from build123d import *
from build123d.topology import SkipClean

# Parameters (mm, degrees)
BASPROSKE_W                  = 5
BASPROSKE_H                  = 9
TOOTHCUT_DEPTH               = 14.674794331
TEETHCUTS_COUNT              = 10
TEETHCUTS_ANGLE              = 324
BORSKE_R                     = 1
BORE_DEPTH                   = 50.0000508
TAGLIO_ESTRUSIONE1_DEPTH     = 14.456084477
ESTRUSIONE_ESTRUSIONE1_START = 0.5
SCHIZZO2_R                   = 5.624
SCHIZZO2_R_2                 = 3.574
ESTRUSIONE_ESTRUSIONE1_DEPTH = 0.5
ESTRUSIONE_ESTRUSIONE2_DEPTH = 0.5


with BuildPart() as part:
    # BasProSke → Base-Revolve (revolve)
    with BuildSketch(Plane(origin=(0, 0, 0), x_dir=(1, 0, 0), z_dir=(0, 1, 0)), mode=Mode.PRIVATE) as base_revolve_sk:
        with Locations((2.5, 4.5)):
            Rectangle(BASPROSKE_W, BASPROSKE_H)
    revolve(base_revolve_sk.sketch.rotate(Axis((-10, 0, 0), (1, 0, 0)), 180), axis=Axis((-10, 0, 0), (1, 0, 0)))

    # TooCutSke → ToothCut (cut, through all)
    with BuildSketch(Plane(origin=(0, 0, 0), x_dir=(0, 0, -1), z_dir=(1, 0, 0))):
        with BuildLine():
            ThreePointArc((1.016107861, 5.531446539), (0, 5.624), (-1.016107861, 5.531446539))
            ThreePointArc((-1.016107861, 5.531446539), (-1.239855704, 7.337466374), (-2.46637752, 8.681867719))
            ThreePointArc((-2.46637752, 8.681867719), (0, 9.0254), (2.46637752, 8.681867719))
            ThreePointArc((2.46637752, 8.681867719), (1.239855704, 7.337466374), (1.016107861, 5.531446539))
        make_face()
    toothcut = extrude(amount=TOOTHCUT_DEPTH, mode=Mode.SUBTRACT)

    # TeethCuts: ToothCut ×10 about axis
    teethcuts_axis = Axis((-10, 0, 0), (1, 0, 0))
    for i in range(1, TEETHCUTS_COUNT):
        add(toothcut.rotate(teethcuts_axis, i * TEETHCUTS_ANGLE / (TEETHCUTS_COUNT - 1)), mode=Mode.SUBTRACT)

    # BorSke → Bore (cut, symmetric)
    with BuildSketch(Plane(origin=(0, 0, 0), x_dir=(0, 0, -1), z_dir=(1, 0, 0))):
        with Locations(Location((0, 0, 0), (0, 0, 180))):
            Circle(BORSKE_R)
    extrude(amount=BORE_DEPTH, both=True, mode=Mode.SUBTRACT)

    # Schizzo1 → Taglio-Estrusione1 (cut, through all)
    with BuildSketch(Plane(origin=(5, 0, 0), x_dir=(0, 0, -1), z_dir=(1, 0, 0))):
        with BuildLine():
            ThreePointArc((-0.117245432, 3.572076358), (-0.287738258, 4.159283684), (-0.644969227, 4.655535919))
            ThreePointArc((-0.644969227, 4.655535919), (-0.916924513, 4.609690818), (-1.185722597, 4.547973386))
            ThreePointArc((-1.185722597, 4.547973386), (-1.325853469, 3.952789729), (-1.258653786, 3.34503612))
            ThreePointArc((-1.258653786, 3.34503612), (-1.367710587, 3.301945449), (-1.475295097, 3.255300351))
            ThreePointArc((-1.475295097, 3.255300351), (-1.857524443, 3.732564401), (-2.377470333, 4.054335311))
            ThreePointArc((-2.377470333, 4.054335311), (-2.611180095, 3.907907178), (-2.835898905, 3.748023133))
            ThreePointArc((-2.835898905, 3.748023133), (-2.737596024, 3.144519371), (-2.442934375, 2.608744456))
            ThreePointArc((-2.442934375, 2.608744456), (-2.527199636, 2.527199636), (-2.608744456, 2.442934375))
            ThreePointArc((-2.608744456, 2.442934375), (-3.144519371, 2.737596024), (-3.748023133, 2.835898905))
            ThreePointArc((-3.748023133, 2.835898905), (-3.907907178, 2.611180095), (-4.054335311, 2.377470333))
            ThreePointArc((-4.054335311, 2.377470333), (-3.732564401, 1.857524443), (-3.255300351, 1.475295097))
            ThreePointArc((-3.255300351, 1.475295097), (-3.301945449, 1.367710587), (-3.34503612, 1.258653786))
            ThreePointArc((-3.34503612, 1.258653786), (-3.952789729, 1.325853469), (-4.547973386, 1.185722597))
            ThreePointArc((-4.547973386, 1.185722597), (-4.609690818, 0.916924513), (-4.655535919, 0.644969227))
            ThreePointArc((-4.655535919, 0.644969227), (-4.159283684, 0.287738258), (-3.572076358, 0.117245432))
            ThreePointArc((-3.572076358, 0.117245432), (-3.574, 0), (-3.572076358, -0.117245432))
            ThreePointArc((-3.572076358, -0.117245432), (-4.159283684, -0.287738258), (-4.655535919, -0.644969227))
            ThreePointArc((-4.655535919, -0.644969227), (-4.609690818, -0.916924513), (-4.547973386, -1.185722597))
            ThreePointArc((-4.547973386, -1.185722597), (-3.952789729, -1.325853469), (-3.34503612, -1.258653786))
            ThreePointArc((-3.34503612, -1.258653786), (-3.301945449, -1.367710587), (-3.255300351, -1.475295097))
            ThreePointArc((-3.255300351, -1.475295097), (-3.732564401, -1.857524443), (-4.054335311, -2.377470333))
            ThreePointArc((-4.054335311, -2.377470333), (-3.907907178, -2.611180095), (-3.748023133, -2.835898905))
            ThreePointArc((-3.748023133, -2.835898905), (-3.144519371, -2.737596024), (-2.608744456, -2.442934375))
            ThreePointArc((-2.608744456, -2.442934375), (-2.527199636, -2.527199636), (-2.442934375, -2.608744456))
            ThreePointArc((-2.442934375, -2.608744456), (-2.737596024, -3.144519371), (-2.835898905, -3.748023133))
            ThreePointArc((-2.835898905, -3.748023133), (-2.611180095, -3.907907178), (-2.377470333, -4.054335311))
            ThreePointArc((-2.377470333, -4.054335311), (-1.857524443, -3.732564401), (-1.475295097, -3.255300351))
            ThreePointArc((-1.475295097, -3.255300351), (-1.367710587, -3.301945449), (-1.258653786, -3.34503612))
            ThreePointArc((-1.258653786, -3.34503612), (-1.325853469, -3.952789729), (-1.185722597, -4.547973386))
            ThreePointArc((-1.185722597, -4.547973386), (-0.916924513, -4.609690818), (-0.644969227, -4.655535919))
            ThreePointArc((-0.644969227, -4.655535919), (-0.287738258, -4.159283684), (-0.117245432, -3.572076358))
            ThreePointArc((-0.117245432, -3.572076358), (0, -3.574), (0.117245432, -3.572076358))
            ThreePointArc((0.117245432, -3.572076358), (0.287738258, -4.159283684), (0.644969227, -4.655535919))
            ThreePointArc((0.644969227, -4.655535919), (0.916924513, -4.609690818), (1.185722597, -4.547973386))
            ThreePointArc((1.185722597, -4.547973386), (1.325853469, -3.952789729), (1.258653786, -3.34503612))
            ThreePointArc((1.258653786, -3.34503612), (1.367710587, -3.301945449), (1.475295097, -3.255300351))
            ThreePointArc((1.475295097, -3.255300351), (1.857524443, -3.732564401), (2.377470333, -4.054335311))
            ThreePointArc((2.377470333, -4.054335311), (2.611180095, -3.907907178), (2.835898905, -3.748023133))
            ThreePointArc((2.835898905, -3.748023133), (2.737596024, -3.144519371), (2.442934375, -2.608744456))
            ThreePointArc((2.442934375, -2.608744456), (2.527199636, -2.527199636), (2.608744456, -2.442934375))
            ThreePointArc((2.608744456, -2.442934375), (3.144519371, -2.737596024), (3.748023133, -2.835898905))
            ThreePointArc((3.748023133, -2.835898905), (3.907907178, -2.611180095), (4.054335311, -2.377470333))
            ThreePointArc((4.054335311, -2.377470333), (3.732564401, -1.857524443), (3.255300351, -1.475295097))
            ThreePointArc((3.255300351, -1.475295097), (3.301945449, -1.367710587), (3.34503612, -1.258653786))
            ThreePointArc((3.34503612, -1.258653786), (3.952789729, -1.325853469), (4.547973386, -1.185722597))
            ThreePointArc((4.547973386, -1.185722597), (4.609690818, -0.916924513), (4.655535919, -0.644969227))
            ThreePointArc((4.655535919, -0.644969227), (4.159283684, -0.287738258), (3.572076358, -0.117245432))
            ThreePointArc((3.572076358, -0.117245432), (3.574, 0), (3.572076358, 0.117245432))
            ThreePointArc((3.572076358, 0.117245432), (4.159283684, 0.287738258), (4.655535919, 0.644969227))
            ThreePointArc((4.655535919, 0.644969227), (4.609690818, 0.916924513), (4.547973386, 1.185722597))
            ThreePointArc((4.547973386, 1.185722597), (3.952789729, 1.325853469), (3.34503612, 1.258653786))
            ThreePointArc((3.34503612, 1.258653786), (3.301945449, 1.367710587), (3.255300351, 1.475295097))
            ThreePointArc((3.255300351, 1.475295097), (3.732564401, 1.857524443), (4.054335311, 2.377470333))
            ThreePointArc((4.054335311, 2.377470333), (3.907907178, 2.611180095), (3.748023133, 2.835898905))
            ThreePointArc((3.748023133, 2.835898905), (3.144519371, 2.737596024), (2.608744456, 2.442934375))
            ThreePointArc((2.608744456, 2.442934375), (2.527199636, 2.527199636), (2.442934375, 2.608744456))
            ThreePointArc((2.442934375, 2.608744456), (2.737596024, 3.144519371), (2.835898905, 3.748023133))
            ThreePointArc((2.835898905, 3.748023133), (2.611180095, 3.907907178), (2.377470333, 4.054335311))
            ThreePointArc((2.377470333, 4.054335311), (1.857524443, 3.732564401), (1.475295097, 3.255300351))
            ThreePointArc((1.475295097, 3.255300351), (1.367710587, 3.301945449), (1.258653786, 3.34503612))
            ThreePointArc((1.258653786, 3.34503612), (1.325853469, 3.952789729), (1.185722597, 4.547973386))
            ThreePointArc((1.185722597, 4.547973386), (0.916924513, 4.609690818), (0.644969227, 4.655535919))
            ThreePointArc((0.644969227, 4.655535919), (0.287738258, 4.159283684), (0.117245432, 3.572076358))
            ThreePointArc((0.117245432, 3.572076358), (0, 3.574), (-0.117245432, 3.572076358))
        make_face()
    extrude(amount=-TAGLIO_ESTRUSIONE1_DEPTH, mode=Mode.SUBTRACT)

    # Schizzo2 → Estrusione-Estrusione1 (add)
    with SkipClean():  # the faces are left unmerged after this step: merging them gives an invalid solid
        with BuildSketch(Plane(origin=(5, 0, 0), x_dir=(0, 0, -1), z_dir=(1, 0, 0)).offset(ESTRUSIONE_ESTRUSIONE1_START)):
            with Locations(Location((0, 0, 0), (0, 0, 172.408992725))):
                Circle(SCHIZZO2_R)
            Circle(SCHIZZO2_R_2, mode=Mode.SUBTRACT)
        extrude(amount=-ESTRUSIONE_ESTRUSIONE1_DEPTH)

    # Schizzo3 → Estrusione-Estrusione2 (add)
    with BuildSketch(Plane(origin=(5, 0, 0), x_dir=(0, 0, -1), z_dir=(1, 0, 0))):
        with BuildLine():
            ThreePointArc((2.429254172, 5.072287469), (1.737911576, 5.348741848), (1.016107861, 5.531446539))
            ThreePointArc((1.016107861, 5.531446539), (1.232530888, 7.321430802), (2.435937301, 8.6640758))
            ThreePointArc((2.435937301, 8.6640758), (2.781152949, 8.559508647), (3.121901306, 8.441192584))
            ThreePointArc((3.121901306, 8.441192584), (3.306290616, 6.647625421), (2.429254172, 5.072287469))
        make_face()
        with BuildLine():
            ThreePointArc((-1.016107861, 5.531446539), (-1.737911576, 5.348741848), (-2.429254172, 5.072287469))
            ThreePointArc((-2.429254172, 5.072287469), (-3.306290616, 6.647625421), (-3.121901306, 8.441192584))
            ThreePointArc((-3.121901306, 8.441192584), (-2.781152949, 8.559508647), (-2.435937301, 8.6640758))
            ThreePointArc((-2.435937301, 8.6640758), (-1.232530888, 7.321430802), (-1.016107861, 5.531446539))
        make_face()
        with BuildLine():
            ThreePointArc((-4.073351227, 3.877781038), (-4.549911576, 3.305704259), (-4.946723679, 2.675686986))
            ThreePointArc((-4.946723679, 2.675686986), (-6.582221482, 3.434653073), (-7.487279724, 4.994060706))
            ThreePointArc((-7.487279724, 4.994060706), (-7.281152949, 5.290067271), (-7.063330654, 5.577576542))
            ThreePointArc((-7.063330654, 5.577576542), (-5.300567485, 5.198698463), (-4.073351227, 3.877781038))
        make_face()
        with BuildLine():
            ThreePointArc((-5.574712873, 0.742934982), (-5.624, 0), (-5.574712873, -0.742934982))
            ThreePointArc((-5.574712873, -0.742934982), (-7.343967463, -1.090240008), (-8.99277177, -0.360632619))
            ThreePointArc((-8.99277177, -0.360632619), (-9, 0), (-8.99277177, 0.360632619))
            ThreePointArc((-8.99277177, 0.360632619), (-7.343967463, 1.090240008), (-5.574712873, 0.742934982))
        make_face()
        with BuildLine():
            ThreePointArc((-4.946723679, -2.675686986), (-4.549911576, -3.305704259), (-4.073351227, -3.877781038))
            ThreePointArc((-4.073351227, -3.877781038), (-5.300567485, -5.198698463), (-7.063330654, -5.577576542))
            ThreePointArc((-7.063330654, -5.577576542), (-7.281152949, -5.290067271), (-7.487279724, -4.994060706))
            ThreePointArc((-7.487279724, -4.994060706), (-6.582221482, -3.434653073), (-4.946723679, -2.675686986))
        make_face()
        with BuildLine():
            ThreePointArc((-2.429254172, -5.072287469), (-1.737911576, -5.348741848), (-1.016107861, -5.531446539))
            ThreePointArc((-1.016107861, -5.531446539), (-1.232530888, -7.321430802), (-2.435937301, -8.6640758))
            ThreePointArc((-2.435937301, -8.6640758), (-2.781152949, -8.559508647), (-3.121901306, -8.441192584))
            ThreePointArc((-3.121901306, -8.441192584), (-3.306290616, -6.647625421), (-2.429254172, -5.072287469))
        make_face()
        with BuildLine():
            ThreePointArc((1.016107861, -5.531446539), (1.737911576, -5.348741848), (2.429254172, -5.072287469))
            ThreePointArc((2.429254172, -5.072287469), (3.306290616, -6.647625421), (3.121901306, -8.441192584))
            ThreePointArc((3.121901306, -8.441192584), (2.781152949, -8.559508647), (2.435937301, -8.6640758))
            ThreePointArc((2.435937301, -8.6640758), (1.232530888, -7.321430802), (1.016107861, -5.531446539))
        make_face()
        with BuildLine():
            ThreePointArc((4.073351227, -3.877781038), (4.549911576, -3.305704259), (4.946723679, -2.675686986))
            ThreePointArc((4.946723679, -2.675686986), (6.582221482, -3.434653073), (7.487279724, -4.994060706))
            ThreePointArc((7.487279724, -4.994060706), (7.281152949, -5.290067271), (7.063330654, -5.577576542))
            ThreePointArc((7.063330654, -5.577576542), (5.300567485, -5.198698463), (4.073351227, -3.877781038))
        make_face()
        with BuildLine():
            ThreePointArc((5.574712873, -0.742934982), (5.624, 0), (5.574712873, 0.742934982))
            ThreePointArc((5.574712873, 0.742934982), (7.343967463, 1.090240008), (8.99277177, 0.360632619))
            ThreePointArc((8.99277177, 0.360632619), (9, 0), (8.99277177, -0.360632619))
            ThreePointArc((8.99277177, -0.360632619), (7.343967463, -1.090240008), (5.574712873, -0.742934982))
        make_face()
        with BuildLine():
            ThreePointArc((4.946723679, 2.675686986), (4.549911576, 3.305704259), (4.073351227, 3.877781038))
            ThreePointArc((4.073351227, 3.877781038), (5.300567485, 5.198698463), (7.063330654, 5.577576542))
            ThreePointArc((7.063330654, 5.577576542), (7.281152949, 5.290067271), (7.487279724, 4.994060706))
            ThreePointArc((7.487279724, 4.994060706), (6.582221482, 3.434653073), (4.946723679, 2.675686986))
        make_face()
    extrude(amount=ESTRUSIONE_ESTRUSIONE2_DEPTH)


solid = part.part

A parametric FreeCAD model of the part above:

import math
import FreeCAD as App
import Part
import Sketcher
Q = App.Units.Quantity


def add_polygon(sketch, points):
    """Adds a closed chain of lines whose ends are joined by coincident constraints."""
    first, n = sketch.GeometryCount, len(points)
    for a, b in zip(points, points[1:] + points[:1]):
        sketch.addGeometry(Part.LineSegment(App.Vector(*a, 0), App.Vector(*b, 0)), False)
    for i in range(n):
        sketch.addConstraint(Sketcher.Constraint("Coincident", first + i, 2, first + (i + 1) % n, 1))

doc = App.newDocument("Part")
params = doc.addObject("Spreadsheet::Sheet", "Params")
for row, (alias, value) in enumerate([
    ("sketch1_width", "5 mm"),
    ("sketch1_height", "9 mm"),
    ("revolution_angle", "360 deg"),
    ("sketch2_radius", "3 mm"),
    ("sketch3_diameter", "2 mm"),
    ("pocket2_length", "100.000102 mm"),
    ("sketch4_radius", "1.8 mm"),
    ("sketch4_radius2", "4.7 mm"),
    ("pad1_length", "0.5 mm"),
    ("sketch6_radius", "3 mm"),
    ("sketch6_radius2", "9 mm"),
    ("pad2_length", "0.5 mm"),
], start=1):
    params.set(f"A{row}", alias)
    params.set(f"B{row}", "=" + value)
    params.setAlias(f"B{row}", alias)

body = doc.addObject("PartDesign::Body", "Body")

# Sketch on XZ plane
sketch1 = body.newObject("Sketcher::SketchObject", "Sketch")
sketch1.AttachmentSupport = (doc.getObject("XZ_Plane"), [""])
sketch1.MapMode = "FlatFace"
add_polygon(sketch1, [(0, -9), (0, 0), (5, 0), (5, -9)])  # lines 0-3
sketch1.addConstraint([
    Sketcher.Constraint("Vertical", 0),
    Sketcher.Constraint("Horizontal", 1),
    Sketcher.Constraint("Vertical", 2),
    Sketcher.Constraint("Horizontal", 3),
    Sketcher.Constraint("Coincident", 0, 2, -1, 1),
    Sketcher.Constraint("DistanceX", 1, 1, 1, 2, Q("5 mm")),
    Sketcher.Constraint("DistanceY", 0, 1, 0, 2, Q("9 mm")),
])
sketch1.setExpression("Constraints[9]", "Params.sketch1_width")
sketch1.setExpression("Constraints[10]", "Params.sketch1_height")
revolution = body.newObject("PartDesign::Revolution", "Revolution")
revolution.Profile = sketch1
revolution.ReferenceAxis = (sketch1, ["H_Axis"])
revolution.setExpression("Angle", "Params.revolution_angle")

# Sketch on YZ plane
sketch2 = body.newObject("Sketcher::SketchObject", "Sketch001")
sketch2.AttachmentSupport = (doc.getObject("YZ_Plane"), [""])
sketch2.MapMode = "FlatFace"
sketch2.addGeometry([
    Part.ArcOfCircle(Part.Circle(App.Vector(0, 0, 0), App.Vector(0, 0, 1), 5.6), math.radians(-10), math.radians(10)),
    Part.ArcOfCircle(Part.Circle(App.Vector(6.1, -4, 0), App.Vector(0, 0, 1), 3), math.radians(30), math.radians(101)),
    Part.ArcOfCircle(Part.Circle(App.Vector(0, 0, 0), App.Vector(0, 0, 1), 9), math.radians(-16), math.radians(16)),
    Part.ArcOfCircle(Part.Circle(App.Vector(6.1, 4, 0), App.Vector(0, 0, 1), 3), math.radians(-101), math.radians(-30)),
], False)
sketch2.addConstraint([
    Sketcher.Constraint("Coincident", 0, 1, 1, 2),
    Sketcher.Constraint("Coincident", 1, 1, 2, 1),
    Sketcher.Constraint("Coincident", 2, 2, 3, 2),
    Sketcher.Constraint("Coincident", 3, 1, 0, 2),
    Sketcher.Constraint("Coincident", 0, 3, -1, 1),
    Sketcher.Constraint("Coincident", 2, 3, -1, 1),
    Sketcher.Constraint("Equal", 1, 3),
    Sketcher.Constraint("Symmetric", 1, 3, 3, 3, -1),
    Sketcher.Constraint("Radius", 1, Q("3 mm")),
    Sketcher.Constraint("Radius", 0, Q("5.624 mm")),
    Sketcher.Constraint("Radius", 2, Q("9.0254 mm")),
    Sketcher.Constraint("DistanceX", -1, 1, 1, 3, Q("6.082981 mm")),
    Sketcher.Constraint("DistanceY", 0, 1, 3, 3, Q("4.981081 mm")),
])
sketch2.setExpression("Constraints[8]", "Params.sketch2_radius")
pocket1 = body.newObject("PartDesign::Pocket", "Pocket")
pocket1.Profile = sketch2
pocket1.Type = "ThroughAll"
pocket1.Reversed = True
doc.recompute()

polarpattern = body.newObject("PartDesign::PolarPattern", "PolarPattern")
polarpattern.Originals = [pocket1]
polarpattern.Axis = (doc.getObject("X_Axis"), [""])
polarpattern.Angle = 360
polarpattern.Occurrences = 10
body.Tip = polarpattern

# Sketch on YZ plane
sketch3 = body.newObject("Sketcher::SketchObject", "Sketch002")
sketch3.AttachmentSupport = (doc.getObject("YZ_Plane"), [""])
sketch3.MapMode = "FlatFace"
sketch3.addGeometry(Part.Circle(App.Vector(0, 0, 0), App.Vector(0, 0, 1), 1), False)
sketch3.addConstraint([
    Sketcher.Constraint("Coincident", 0, 3, -1, 1),
    Sketcher.Constraint("Diameter", 0, Q("2 mm")),
])
sketch3.setExpression("Constraints[1]", "Params.sketch3_diameter")
pocket2 = body.newObject("PartDesign::Pocket", "Pocket001")
pocket2.Profile = sketch3
pocket2.setExpression("Length", "Params.pocket2_length")
pocket2.Midplane = True

# Sketch on YZ plane
sketch4 = body.newObject("Sketcher::SketchObject", "Sketch003")
sketch4.AttachmentSupport = (doc.getObject("YZ_Plane"), [""])
sketch4.MapMode = "FlatFace"
sketch4.AttachmentOffset = App.Placement(App.Vector(0, 0, 5), App.Rotation())
sketch4.addGeometry([
    Part.ArcOfCircle(Part.Circle(App.Vector(3.37, 1.91, 0), App.Vector(0, 0, 1), 1.8), math.radians(-84), math.radians(-44)),  # 0
    Part.ArcOfCircle(Part.Circle(App.Vector(0, 0, 0), App.Vector(0, 0, 1), 4.7), math.radians(7.89), math.radians(14.61)),  # 1
    Part.ArcOfCircle(Part.Circle(App.Vector(3.84, -0.47, 0), App.Vector(0, 0, 1), 1.8), math.radians(67), math.radians(106)),  # 2
    Part.ArcOfCircle(Part.Circle(App.Vector(0, 0, 0), App.Vector(0, 0, 1), 3.57), math.radians(20.62), math.radians(24.38)),  # 3
    Part.ArcOfCircle(Part.Circle(App.Vector(2.39, 3.05, 0), App.Vector(0, 0, 1), 1.8), math.radians(-61), math.radians(-22)),  # 4
    Part.ArcOfCircle(Part.Circle(App.Vector(0, 0, 0), App.Vector(0, 0, 1), 4.7), math.radians(30.39), math.radians(37.11)),  # 5
    Part.ArcOfCircle(Part.Circle(App.Vector(3.73, 1.04, 0), App.Vector(0, 0, 1), 1.8), math.radians(89), math.radians(129)),  # 6
    Part.ArcOfCircle(Part.Circle(App.Vector(0, 0, 0), App.Vector(0, 0, 1), 3.57), math.radians(43.12), math.radians(46.88)),  # 7
    Part.ArcOfCircle(Part.Circle(App.Vector(1.04, 3.73, 0), App.Vector(0, 0, 1), 1.8), math.radians(-39), math.radians(1)),  # 8
    Part.ArcOfCircle(Part.Circle(App.Vector(0, 0, 0), App.Vector(0, 0, 1), 4.7), math.radians(52.89), math.radians(59.61)),  # 9
    Part.ArcOfCircle(Part.Circle(App.Vector(3.05, 2.39, 0), App.Vector(0, 0, 1), 1.8), math.radians(112), math.radians(151)),  # 10
    Part.ArcOfCircle(Part.Circle(App.Vector(0, 0, 0), App.Vector(0, 0, 1), 3.57), math.radians(65.62), math.radians(69.38)),  # 11
    Part.ArcOfCircle(Part.Circle(App.Vector(-0.47, 3.84, 0), App.Vector(0, 0, 1), 1.8), math.radians(-16), math.radians(23)),  # 12
    Part.ArcOfCircle(Part.Circle(App.Vector(0, 0, 0), App.Vector(0, 0, 1), 4.7), math.radians(75.39), math.radians(82.11)),  # 13
    Part.ArcOfCircle(Part.Circle(App.Vector(1.91, 3.37, 0), App.Vector(0, 0, 1), 1.8), math.radians(134), math.radians(174)),  # 14
    Part.ArcOfCircle(Part.Circle(App.Vector(0, 0, 0), App.Vector(0, 0, 1), 3.57), math.radians(88.12), math.radians(91.88)),  # 15
    Part.ArcOfCircle(Part.Circle(App.Vector(-1.91, 3.37, 0), App.Vector(0, 0, 1), 1.8), math.radians(6), math.radians(46)),  # 16
    Part.ArcOfCircle(Part.Circle(App.Vector(0, 0, 0), App.Vector(0, 0, 1), 4.7), math.radians(97.89), math.radians(104.61)),  # 17
    Part.ArcOfCircle(Part.Circle(App.Vector(0.47, 3.84, 0), App.Vector(0, 0, 1), 1.8), math.radians(157), math.radians(196)),  # 18
    Part.ArcOfCircle(Part.Circle(App.Vector(0, 0, 0), App.Vector(0, 0, 1), 3.57), math.radians(110.62), math.radians(114.38)),  # 19
    Part.ArcOfCircle(Part.Circle(App.Vector(-3.05, 2.39, 0), App.Vector(0, 0, 1), 1.8), math.radians(29), math.radians(68)),  # 20
    Part.ArcOfCircle(Part.Circle(App.Vector(0, 0, 0), App.Vector(0, 0, 1), 4.7), math.radians(120.39), math.radians(127.11)),  # 21
    Part.ArcOfCircle(Part.Circle(App.Vector(-1.04, 3.73, 0), App.Vector(0, 0, 1), 1.8), math.radians(179), math.radians(219)),  # 22
    Part.ArcOfCircle(Part.Circle(App.Vector(0, 0, 0), App.Vector(0, 0, 1), 3.57), math.radians(133.12), math.radians(136.88)),  # 23
    Part.ArcOfCircle(Part.Circle(App.Vector(-3.73, 1.04, 0), App.Vector(0, 0, 1), 1.8), math.radians(51), math.radians(91)),  # 24
    Part.ArcOfCircle(Part.Circle(App.Vector(0, 0, 0), App.Vector(0, 0, 1), 4.7), math.radians(142.89), math.radians(149.61)),  # 25
    Part.ArcOfCircle(Part.Circle(App.Vector(-2.39, 3.05, 0), App.Vector(0, 0, 1), 1.8), math.radians(-158), math.radians(-119)),  # 26
    Part.ArcOfCircle(Part.Circle(App.Vector(0, 0, 0), App.Vector(0, 0, 1), 3.57), math.radians(155.62), math.radians(159.38)),  # 27
    Part.ArcOfCircle(Part.Circle(App.Vector(-3.84, -0.47, 0), App.Vector(0, 0, 1), 1.8), math.radians(74), math.radians(113)),  # 28
    Part.ArcOfCircle(Part.Circle(App.Vector(0, 0, 0), App.Vector(0, 0, 1), 4.7), math.radians(165.39), math.radians(172.11)),  # 29
    Part.ArcOfCircle(Part.Circle(App.Vector(-3.37, 1.91, 0), App.Vector(0, 0, 1), 1.8), math.radians(-136), math.radians(-96)),  # 30
    Part.ArcOfCircle(Part.Circle(App.Vector(0, 0, 0), App.Vector(0, 0, 1), 3.57), math.radians(178.12), math.radians(181.88)),  # 31
    Part.ArcOfCircle(Part.Circle(App.Vector(-3.37, -1.91, 0), App.Vector(0, 0, 1), 1.8), math.radians(96), math.radians(136)),  # 32
    Part.ArcOfCircle(Part.Circle(App.Vector(0, 0, 0), App.Vector(0, 0, 1), 4.7), math.radians(-172.11), math.radians(-165.39)),  # 33
    Part.ArcOfCircle(Part.Circle(App.Vector(-3.84, 0.47, 0), App.Vector(0, 0, 1), 1.8), math.radians(-113), math.radians(-74)),  # 34
    Part.ArcOfCircle(Part.Circle(App.Vector(0, 0, 0), App.Vector(0, 0, 1), 3.57), math.radians(-159.38), math.radians(-155.62)),  # 35
    Part.ArcOfCircle(Part.Circle(App.Vector(-2.39, -3.05, 0), App.Vector(0, 0, 1), 1.8), math.radians(119), math.radians(158)),  # 36
    Part.ArcOfCircle(Part.Circle(App.Vector(0, 0, 0), App.Vector(0, 0, 1), 4.7), math.radians(-149.61), math.radians(-142.89)),  # 37
    Part.ArcOfCircle(Part.Circle(App.Vector(-3.73, -1.04, 0), App.Vector(0, 0, 1), 1.8), math.radians(-91), math.radians(-51)),  # 38
    Part.ArcOfCircle(Part.Circle(App.Vector(0, 0, 0), App.Vector(0, 0, 1), 3.57), math.radians(-136.88), math.radians(-133.12)),  # 39
    Part.ArcOfCircle(Part.Circle(App.Vector(-1.04, -3.73, 0), App.Vector(0, 0, 1), 1.8), math.radians(141), math.radians(181)),  # 40
    Part.ArcOfCircle(Part.Circle(App.Vector(0, 0, 0), App.Vector(0, 0, 1), 4.7), math.radians(-127.11), math.radians(-120.39)),  # 41
    Part.ArcOfCircle(Part.Circle(App.Vector(-3.05, -2.39, 0), App.Vector(0, 0, 1), 1.8), math.radians(-68), math.radians(-29)),  # 42
    Part.ArcOfCircle(Part.Circle(App.Vector(0, 0, 0), App.Vector(0, 0, 1), 3.57), math.radians(-114.38), math.radians(-110.62)),  # 43
    Part.ArcOfCircle(Part.Circle(App.Vector(0.47, -3.84, 0), App.Vector(0, 0, 1), 1.8), math.radians(164), math.radians(203)),  # 44
    Part.ArcOfCircle(Part.Circle(App.Vector(0, 0, 0), App.Vector(0, 0, 1), 4.7), math.radians(-104.61), math.radians(-97.89)),  # 45
    Part.ArcOfCircle(Part.Circle(App.Vector(-1.91, -3.37, 0), App.Vector(0, 0, 1), 1.8), math.radians(-46), math.radians(-6)),  # 46
    Part.ArcOfCircle(Part.Circle(App.Vector(0, 0, 0), App.Vector(0, 0, 1), 3.57), math.radians(-91.88), math.radians(-88.12)),  # 47
    Part.ArcOfCircle(Part.Circle(App.Vector(1.91, -3.37, 0), App.Vector(0, 0, 1), 1.8), math.radians(-174), math.radians(-134)),  # 48
    Part.ArcOfCircle(Part.Circle(App.Vector(0, 0, 0), App.Vector(0, 0, 1), 4.7), math.radians(-82.11), math.radians(-75.39)),  # 49
    Part.ArcOfCircle(Part.Circle(App.Vector(-0.47, -3.84, 0), App.Vector(0, 0, 1), 1.8), math.radians(-23), math.radians(16)),  # 50
    Part.ArcOfCircle(Part.Circle(App.Vector(0, 0, 0), App.Vector(0, 0, 1), 3.57), math.radians(-69.38), math.radians(-65.62)),  # 51
    Part.ArcOfCircle(Part.Circle(App.Vector(3.05, -2.39, 0), App.Vector(0, 0, 1), 1.8), math.radians(-151), math.radians(-112)),  # 52
    Part.ArcOfCircle(Part.Circle(App.Vector(0, 0, 0), App.Vector(0, 0, 1), 4.7), math.radians(-59.61), math.radians(-52.89)),  # 53
    Part.ArcOfCircle(Part.Circle(App.Vector(1.04, -3.73, 0), App.Vector(0, 0, 1), 1.8), math.radians(-1), math.radians(39)),  # 54
    Part.ArcOfCircle(Part.Circle(App.Vector(0, 0, 0), App.Vector(0, 0, 1), 3.57), math.radians(-46.88), math.radians(-43.12)),  # 55
    Part.ArcOfCircle(Part.Circle(App.Vector(3.73, -1.04, 0), App.Vector(0, 0, 1), 1.8), math.radians(-129), math.radians(-89)),  # 56
    Part.ArcOfCircle(Part.Circle(App.Vector(0, 0, 0), App.Vector(0, 0, 1), 4.7), math.radians(-37.11), math.radians(-30.39)),  # 57
    Part.ArcOfCircle(Part.Circle(App.Vector(2.39, -3.05, 0), App.Vector(0, 0, 1), 1.8), math.radians(22), math.radians(61)),  # 58
    Part.ArcOfCircle(Part.Circle(App.Vector(0, 0, 0), App.Vector(0, 0, 1), 3.57), math.radians(-24.38), math.radians(-20.62)),  # 59
    Part.ArcOfCircle(Part.Circle(App.Vector(3.84, 0.47, 0), App.Vector(0, 0, 1), 1.8), math.radians(-106), math.radians(-67)),  # 60
    Part.ArcOfCircle(Part.Circle(App.Vector(0, 0, 0), App.Vector(0, 0, 1), 4.7), math.radians(-14.61), math.radians(-7.89)),  # 61
    Part.ArcOfCircle(Part.Circle(App.Vector(3.37, -1.91, 0), App.Vector(0, 0, 1), 1.8), math.radians(44), math.radians(84)),  # 62
    Part.ArcOfCircle(Part.Circle(App.Vector(0, 0, 0), App.Vector(0, 0, 1), 3.57), math.radians(-1.88), math.radians(1.88)),  # 63
], False)
sketch4.addConstraint([
    Sketcher.Constraint("Coincident", 0, 2, 1, 1),
    Sketcher.Constraint("Coincident", 1, 2, 2, 1),
    Sketcher.Constraint("Coincident", 2, 2, 3, 1),
    Sketcher.Constraint("Coincident", 3, 2, 4, 1),
    Sketcher.Constraint("Coincident", 4, 2, 5, 1),
    Sketcher.Constraint("Coincident", 5, 2, 6, 1),
    Sketcher.Constraint("Coincident", 6, 2, 7, 1),
    Sketcher.Constraint("Coincident", 7, 2, 8, 1),
    Sketcher.Constraint("Coincident", 8, 2, 9, 1),
    Sketcher.Constraint("Coincident", 9, 2, 10, 1),
    Sketcher.Constraint("Coincident", 10, 2, 11, 1),
    Sketcher.Constraint("Coincident", 11, 2, 12, 1),
    Sketcher.Constraint("Coincident", 12, 2, 13, 1),
    Sketcher.Constraint("Coincident", 13, 2, 14, 1),
    Sketcher.Constraint("Coincident", 14, 2, 15, 1),
    Sketcher.Constraint("Coincident", 15, 2, 16, 1),
    Sketcher.Constraint("Coincident", 16, 2, 17, 1),
    Sketcher.Constraint("Coincident", 17, 2, 18, 1),
    Sketcher.Constraint("Coincident", 18, 2, 19, 1),
    Sketcher.Constraint("Coincident", 19, 2, 20, 1),
    Sketcher.Constraint("Coincident", 20, 2, 21, 1),
    Sketcher.Constraint("Coincident", 21, 2, 22, 1),
    Sketcher.Constraint("Coincident", 22, 2, 23, 1),
    Sketcher.Constraint("Coincident", 23, 2, 24, 1),
    Sketcher.Constraint("Coincident", 24, 2, 25, 1),
    Sketcher.Constraint("Coincident", 25, 2, 26, 1),
    Sketcher.Constraint("Coincident", 26, 2, 27, 1),
    Sketcher.Constraint("Coincident", 27, 2, 28, 1),
    Sketcher.Constraint("Coincident", 28, 2, 29, 1),
    Sketcher.Constraint("Coincident", 29, 2, 30, 1),
    Sketcher.Constraint("Coincident", 30, 2, 31, 1),
    Sketcher.Constraint("Coincident", 31, 2, 32, 1),
    Sketcher.Constraint("Coincident", 32, 2, 33, 1),
    Sketcher.Constraint("Coincident", 33, 2, 34, 1),
    Sketcher.Constraint("Coincident", 34, 2, 35, 1),
    Sketcher.Constraint("Coincident", 35, 2, 36, 1),
    Sketcher.Constraint("Coincident", 36, 2, 37, 1),
    Sketcher.Constraint("Coincident", 37, 2, 38, 1),
    Sketcher.Constraint("Coincident", 38, 2, 39, 1),
    Sketcher.Constraint("Coincident", 39, 2, 40, 1),
    Sketcher.Constraint("Coincident", 40, 2, 41, 1),
    Sketcher.Constraint("Coincident", 41, 2, 42, 1),
    Sketcher.Constraint("Coincident", 42, 2, 43, 1),
    Sketcher.Constraint("Coincident", 43, 2, 44, 1),
    Sketcher.Constraint("Coincident", 44, 2, 45, 1),
    Sketcher.Constraint("Coincident", 45, 2, 46, 1),
    Sketcher.Constraint("Coincident", 46, 2, 47, 1),
    Sketcher.Constraint("Coincident", 47, 2, 48, 1),
    Sketcher.Constraint("Coincident", 48, 2, 49, 1),
    Sketcher.Constraint("Coincident", 49, 2, 50, 1),
    Sketcher.Constraint("Coincident", 50, 2, 51, 1),
    Sketcher.Constraint("Coincident", 51, 2, 52, 1),
    Sketcher.Constraint("Coincident", 52, 2, 53, 1),
    Sketcher.Constraint("Coincident", 53, 2, 54, 1),
    Sketcher.Constraint("Coincident", 54, 2, 55, 1),
    Sketcher.Constraint("Coincident", 55, 2, 56, 1),
    Sketcher.Constraint("Coincident", 56, 2, 57, 1),
    Sketcher.Constraint("Coincident", 57, 2, 58, 1),
    Sketcher.Constraint("Coincident", 58, 2, 59, 1),
    Sketcher.Constraint("Coincident", 59, 2, 60, 1),
    Sketcher.Constraint("Coincident", 60, 2, 61, 1),
    Sketcher.Constraint("Coincident", 61, 2, 62, 1),
    Sketcher.Constraint("Coincident", 62, 2, 63, 1),
    Sketcher.Constraint("Coincident", 63, 2, 0, 1),
    Sketcher.Constraint("Coincident", 1, 3, -1, 1),
    Sketcher.Constraint("Coincident", 3, 3, -1, 1),
    Sketcher.Constraint("Coincident", 5, 3, -1, 1),
    Sketcher.Constraint("Coincident", 7, 3, -1, 1),
    Sketcher.Constraint("Coincident", 9, 3, -1, 1),
    Sketcher.Constraint("Coincident", 11, 3, -1, 1),
    Sketcher.Constraint("Coincident", 13, 3, -1, 1),
    Sketcher.Constraint("Coincident", 15, 3, -1, 1),
    Sketcher.Constraint("Coincident", 17, 3, -1, 1),
    Sketcher.Constraint("Coincident", 19, 3, -1, 1),
    Sketcher.Constraint("Coincident", 21, 3, -1, 1),
    Sketcher.Constraint("Coincident", 23, 3, -1, 1),
    Sketcher.Constraint("Coincident", 25, 3, -1, 1),
    Sketcher.Constraint("Coincident", 27, 3, -1, 1),
    Sketcher.Constraint("Coincident", 29, 3, -1, 1),
    Sketcher.Constraint("Coincident", 31, 3, -1, 1),
    Sketcher.Constraint("Coincident", 33, 3, -1, 1),
    Sketcher.Constraint("Coincident", 35, 3, -1, 1),
    Sketcher.Constraint("Coincident", 37, 3, -1, 1),
    Sketcher.Constraint("Coincident", 39, 3, -1, 1),
    Sketcher.Constraint("Coincident", 41, 3, -1, 1),
    Sketcher.Constraint("Coincident", 43, 3, -1, 1),
    Sketcher.Constraint("Coincident", 45, 3, -1, 1),
    Sketcher.Constraint("Coincident", 47, 3, -1, 1),
    Sketcher.Constraint("Coincident", 49, 3, -1, 1),
    Sketcher.Constraint("Coincident", 51, 3, -1, 1),
    Sketcher.Constraint("Coincident", 53, 3, -1, 1),
    Sketcher.Constraint("Coincident", 55, 3, -1, 1),
    Sketcher.Constraint("Coincident", 57, 3, -1, 1),
    Sketcher.Constraint("Coincident", 59, 3, -1, 1),
    Sketcher.Constraint("Coincident", 61, 3, -1, 1),
    Sketcher.Constraint("Coincident", 63, 3, -1, 1),
    Sketcher.Constraint("Equal", 0, 2),
    Sketcher.Constraint("Equal", 2, 4),
    Sketcher.Constraint("Equal", 1, 5),
    Sketcher.Constraint("Equal", 4, 6),
    Sketcher.Constraint("Equal", 3, 7),
    Sketcher.Constraint("Equal", 6, 8),
    Sketcher.Constraint("Equal", 5, 9),
    Sketcher.Constraint("Equal", 8, 10),
    Sketcher.Constraint("Equal", 7, 11),
    Sketcher.Constraint("Equal", 10, 12),
    Sketcher.Constraint("Equal", 9, 13),
    Sketcher.Constraint("Equal", 12, 14),
    Sketcher.Constraint("Equal", 11, 15),
    Sketcher.Constraint("Equal", 14, 16),
    Sketcher.Constraint("Equal", 13, 17),
    Sketcher.Constraint("Equal", 16, 18),
    Sketcher.Constraint("Equal", 15, 19),
    Sketcher.Constraint("Equal", 18, 20),
    Sketcher.Constraint("Equal", 17, 21),
    Sketcher.Constraint("Equal", 20, 22),
    Sketcher.Constraint("Equal", 19, 23),
    Sketcher.Constraint("Equal", 22, 24),
    Sketcher.Constraint("Equal", 21, 25),
    Sketcher.Constraint("Equal", 24, 26),
    Sketcher.Constraint("Equal", 23, 27),
    Sketcher.Constraint("Equal", 26, 28),
    Sketcher.Constraint("Equal", 25, 29),
    Sketcher.Constraint("Equal", 28, 30),
    Sketcher.Constraint("Equal", 27, 31),
    Sketcher.Constraint("Equal", 30, 32),
    Sketcher.Constraint("Equal", 29, 33),
    Sketcher.Constraint("Equal", 32, 34),
    Sketcher.Constraint("Equal", 31, 35),
    Sketcher.Constraint("Equal", 34, 36),
    Sketcher.Constraint("Equal", 33, 37),
    Sketcher.Constraint("Equal", 36, 38),
    Sketcher.Constraint("Equal", 35, 39),
    Sketcher.Constraint("Equal", 38, 40),
    Sketcher.Constraint("Equal", 37, 41),
    Sketcher.Constraint("Equal", 40, 42),
    Sketcher.Constraint("Equal", 39, 43),
    Sketcher.Constraint("Equal", 42, 44),
    Sketcher.Constraint("Equal", 41, 45),
    Sketcher.Constraint("Equal", 44, 46),
    Sketcher.Constraint("Equal", 43, 47),
    Sketcher.Constraint("Equal", 46, 48),
    Sketcher.Constraint("Equal", 45, 49),
    Sketcher.Constraint("Equal", 48, 50),
    Sketcher.Constraint("Equal", 47, 51),
    Sketcher.Constraint("Equal", 50, 52),
    Sketcher.Constraint("Equal", 49, 53),
    Sketcher.Constraint("Equal", 52, 54),
    Sketcher.Constraint("Equal", 51, 55),
    Sketcher.Constraint("Equal", 54, 56),
    Sketcher.Constraint("Equal", 53, 57),
    Sketcher.Constraint("Equal", 56, 58),
    Sketcher.Constraint("Equal", 55, 59),
    Sketcher.Constraint("Equal", 58, 60),
    Sketcher.Constraint("Equal", 57, 61),
    Sketcher.Constraint("Equal", 60, 62),
    Sketcher.Constraint("Equal", 59, 63),
    Sketcher.Constraint("Symmetric", 0, 3, 32, 3, -1, 1),
    Sketcher.Constraint("Symmetric", 2, 3, 34, 3, -1, 1),
    Sketcher.Constraint("Symmetric", 4, 3, 36, 3, -1, 1),
    Sketcher.Constraint("Symmetric", 6, 3, 38, 3, -1, 1),
    Sketcher.Constraint("Symmetric", 8, 3, 40, 3, -1, 1),
    Sketcher.Constraint("Symmetric", 10, 3, 42, 3, -1, 1),
    Sketcher.Constraint("Symmetric", 12, 3, 44, 3, -1, 1),
    Sketcher.Constraint("Symmetric", 14, 3, 46, 3, -1, 1),
    Sketcher.Constraint("Symmetric", 16, 3, 48, 3, -1, 1),
    Sketcher.Constraint("Symmetric", 18, 3, 50, 3, -1, 1),
    Sketcher.Constraint("Symmetric", 20, 3, 52, 3, -1, 1),
    Sketcher.Constraint("Symmetric", 22, 3, 54, 3, -1, 1),
    Sketcher.Constraint("Symmetric", 24, 3, 56, 3, -1, 1),
    Sketcher.Constraint("Symmetric", 26, 3, 58, 3, -1, 1),
    Sketcher.Constraint("Symmetric", 28, 3, 60, 3, -1, 1),
    Sketcher.Constraint("Symmetric", 30, 3, 62, 3, -1, 1),
    Sketcher.Constraint("Symmetric", 14, 3, 16, 3, -2),
    Sketcher.Constraint("Symmetric", 12, 3, 18, 3, -2),
    Sketcher.Constraint("Symmetric", 10, 3, 20, 3, -2),
    Sketcher.Constraint("Symmetric", 8, 3, 22, 3, -2),
    Sketcher.Constraint("Symmetric", 6, 3, 24, 3, -2),
    Sketcher.Constraint("Symmetric", 4, 3, 26, 3, -2),
    Sketcher.Constraint("Symmetric", 2, 3, 28, 3, -2),
    Sketcher.Constraint("Symmetric", 0, 3, 30, 3, -2),
    Sketcher.Constraint("Radius", 0, Q("1.8 mm")),
    Sketcher.Constraint("Radius", 1, Q("4.7 mm")),
    Sketcher.Constraint("Radius", 3, Q("3.574 mm")),
    Sketcher.Constraint("DistanceX", -1, 1, 3, 2, Q("3.2553 mm")),
    Sketcher.Constraint("DistanceY", -1, 1, 5, 2, Q("2.835899 mm")),
    Sketcher.Constraint("DistanceX", -1, 1, 8, 2, Q("2.835899 mm")),
    Sketcher.Constraint("DistanceY", -1, 1, 10, 2, Q("3.2553 mm")),
    Sketcher.Constraint("DistanceX", -1, 1, 0, 3, Q("3.371078 mm")),
    Sketcher.Constraint("DistanceX", -1, 1, 2, 3, Q("3.84386 mm")),
    Sketcher.Constraint("DistanceX", -1, 1, 4, 3, Q("2.38508 mm")),
    Sketcher.Constraint("DistanceX", -1, 1, 6, 3, Q("3.731449 mm")),
    Sketcher.Constraint("DistanceY", -1, 1, 8, 3, Q("3.731449 mm")),
    Sketcher.Constraint("DistanceX", -1, 1, 10, 3, Q("3.050959 mm")),
    Sketcher.Constraint("DistanceY", -1, 1, 12, 3, Q("3.84386 mm")),
    Sketcher.Constraint("DistanceY", -1, 1, 14, 3, Q("3.371078 mm")),
    Sketcher.Constraint("DistanceY", -1, 1, 0, 2, Q("0.644969 mm")),
    Sketcher.Constraint("DistanceX", -1, 1, 13, 2, Q("0.644969 mm")),
    Sketcher.Constraint("DistanceY", 2, 3, -1, 1, Q("0.470847 mm")),
    Sketcher.Constraint("DistanceX", 12, 3, -1, 1, Q("0.470847 mm")),
])
sketch4.setExpression("Constraints[181]", "Params.sketch4_radius")
sketch4.setExpression("Constraints[182]", "Params.sketch4_radius2")
pocket3 = body.newObject("PartDesign::Pocket", "Pocket002")
pocket3.Profile = sketch4
pocket3.Type = "ThroughAll"

# Sketch on YZ plane
sketch5 = body.newObject("Sketcher::SketchObject", "Sketch004")
sketch5.AttachmentSupport = (doc.getObject("YZ_Plane"), [""])
sketch5.MapMode = "FlatFace"
sketch5.AttachmentOffset = App.Placement(App.Vector(0, 0, 5.5), App.Rotation())
sketch5.addGeometry([
    Part.Circle(App.Vector(0, 0, 0), App.Vector(0, 0, 1), 5.6),
    Part.Circle(App.Vector(0, 0, 0), App.Vector(0, 0, 1), 3.6),
], False)
sketch5.addConstraint([
    Sketcher.Constraint("Coincident", 0, 3, -1, 1),
    Sketcher.Constraint("Coincident", 1, 3, -1, 1),
    Sketcher.Constraint("Diameter", 0, Q("11.248 mm")),
    Sketcher.Constraint("Diameter", 1, Q("7.148 mm")),
])
pad1 = body.newObject("PartDesign::Pad", "Pad")
pad1.Profile = sketch5
pad1.setExpression("Length", "Params.pad1_length")
pad1.Reversed = True

# Sketch on YZ plane
sketch6 = body.newObject("Sketcher::SketchObject", "Sketch005")
sketch6.AttachmentSupport = (doc.getObject("YZ_Plane"), [""])
sketch6.MapMode = "FlatFace"
sketch6.AttachmentOffset = App.Placement(App.Vector(0, 0, 5), App.Rotation())
sketch6.addGeometry([
    Part.ArcOfCircle(Part.Circle(App.Vector(0, 0, 0), App.Vector(0, 0, 1), 5.6), math.radians(-25.59), math.radians(-10.41)),  # 0
    Part.ArcOfCircle(Part.Circle(App.Vector(7.3, -0.4, 0), App.Vector(0, 0, 1), 3), math.radians(-137), math.radians(-67)),  # 1
    Part.ArcOfCircle(Part.Circle(App.Vector(0, 0, 0), App.Vector(0, 0, 1), 9), math.radians(-20.3), math.radians(-15.7)),  # 2
    Part.ArcOfCircle(Part.Circle(App.Vector(6.1, -4, 0), App.Vector(0, 0, 1), 3), math.radians(31), math.radians(101)),  # 3
    Part.ArcOfCircle(Part.Circle(App.Vector(0, 0, 0), App.Vector(0, 0, 1), 5.6), math.radians(10.41), math.radians(25.59)),  # 4
    Part.ArcOfCircle(Part.Circle(App.Vector(6.1, 4, 0), App.Vector(0, 0, 1), 3), math.radians(-101), math.radians(-31)),  # 5
    Part.ArcOfCircle(Part.Circle(App.Vector(0, 0, 0), App.Vector(0, 0, 1), 9), math.radians(15.7), math.radians(20.3)),  # 6
    Part.ArcOfCircle(Part.Circle(App.Vector(7.3, 0.4, 0), App.Vector(0, 0, 1), 3), math.radians(67), math.radians(137)),  # 7
    Part.ArcOfCircle(Part.Circle(App.Vector(0, 0, 0), App.Vector(0, 0, 1), 5.6), math.radians(46.41), math.radians(61.59)),  # 8
    Part.ArcOfCircle(Part.Circle(App.Vector(2.6, 6.8, 0), App.Vector(0, 0, 1), 3), math.radians(-65), math.radians(5)),  # 9
    Part.ArcOfCircle(Part.Circle(App.Vector(0, 0, 0), App.Vector(0, 0, 1), 9), math.radians(51.7), math.radians(56.3)),  # 10
    Part.ArcOfCircle(Part.Circle(App.Vector(5.7, 4.6, 0), App.Vector(0, 0, 1), 3), math.radians(103), math.radians(173)),  # 11
    Part.ArcOfCircle(Part.Circle(App.Vector(0, 0, 0), App.Vector(0, 0, 1), 5.6), math.radians(82.41), math.radians(97.59)),  # 12
    Part.ArcOfCircle(Part.Circle(App.Vector(-1.9, 7, 0), App.Vector(0, 0, 1), 3), math.radians(-29), math.radians(41)),  # 13
    Part.ArcOfCircle(Part.Circle(App.Vector(0, 0, 0), App.Vector(0, 0, 1), 9), math.radians(87.7), math.radians(92.3)),  # 14
    Part.ArcOfCircle(Part.Circle(App.Vector(1.9, 7, 0), App.Vector(0, 0, 1), 3), math.radians(139), math.radians(209)),  # 15
    Part.ArcOfCircle(Part.Circle(App.Vector(0, 0, 0), App.Vector(0, 0, 1), 5.6), math.radians(118.41), math.radians(133.59)),  # 16
    Part.ArcOfCircle(Part.Circle(App.Vector(-5.7, 4.6, 0), App.Vector(0, 0, 1), 3), math.radians(7), math.radians(77)),  # 17
    Part.ArcOfCircle(Part.Circle(App.Vector(0, 0, 0), App.Vector(0, 0, 1), 9), math.radians(123.7), math.radians(128.3)),  # 18
    Part.ArcOfCircle(Part.Circle(App.Vector(-2.6, 6.8, 0), App.Vector(0, 0, 1), 3), math.radians(175), math.radians(245)),  # 19
    Part.ArcOfCircle(Part.Circle(App.Vector(0, 0, 0), App.Vector(0, 0, 1), 5.6), math.radians(154.41), math.radians(169.59)),  # 20
    Part.ArcOfCircle(Part.Circle(App.Vector(-7.3, 0.4, 0), App.Vector(0, 0, 1), 3), math.radians(43), math.radians(113)),  # 21
    Part.ArcOfCircle(Part.Circle(App.Vector(0, 0, 0), App.Vector(0, 0, 1), 9), math.radians(159.7), math.radians(164.3)),  # 22
    Part.ArcOfCircle(Part.Circle(App.Vector(-6.1, 4, 0), App.Vector(0, 0, 1), 3), math.radians(-149), math.radians(-79)),  # 23
    Part.ArcOfCircle(Part.Circle(App.Vector(0, 0, 0), App.Vector(0, 0, 1), 5.6), math.radians(-169.59), math.radians(-154.41)),  # 24
    Part.ArcOfCircle(Part.Circle(App.Vector(-6.1, -4, 0), App.Vector(0, 0, 1), 3), math.radians(79), math.radians(149)),  # 25
    Part.ArcOfCircle(Part.Circle(App.Vector(0, 0, 0), App.Vector(0, 0, 1), 9), math.radians(-164.3), math.radians(-159.7)),  # 26
    Part.ArcOfCircle(Part.Circle(App.Vector(-7.3, -0.4, 0), App.Vector(0, 0, 1), 3), math.radians(-113), math.radians(-43)),  # 27
    Part.ArcOfCircle(Part.Circle(App.Vector(0, 0, 0), App.Vector(0, 0, 1), 5.6), math.radians(-133.59), math.radians(-118.41)),  # 28
    Part.ArcOfCircle(Part.Circle(App.Vector(-2.6, -6.8, 0), App.Vector(0, 0, 1), 3), math.radians(115), math.radians(185)),  # 29
    Part.ArcOfCircle(Part.Circle(App.Vector(0, 0, 0), App.Vector(0, 0, 1), 9), math.radians(-128.3), math.radians(-123.7)),  # 30
    Part.ArcOfCircle(Part.Circle(App.Vector(-5.7, -4.6, 0), App.Vector(0, 0, 1), 3), math.radians(-77), math.radians(-7)),  # 31
    Part.ArcOfCircle(Part.Circle(App.Vector(0, 0, 0), App.Vector(0, 0, 1), 5.6), math.radians(-97.59), math.radians(-82.41)),  # 32
    Part.ArcOfCircle(Part.Circle(App.Vector(1.9, -7, 0), App.Vector(0, 0, 1), 3), math.radians(151), math.radians(221)),  # 33
    Part.ArcOfCircle(Part.Circle(App.Vector(0, 0, 0), App.Vector(0, 0, 1), 9), math.radians(-92.3), math.radians(-87.7)),  # 34
    Part.ArcOfCircle(Part.Circle(App.Vector(-1.9, -7, 0), App.Vector(0, 0, 1), 3), math.radians(-41), math.radians(29)),  # 35
    Part.ArcOfCircle(Part.Circle(App.Vector(0, 0, 0), App.Vector(0, 0, 1), 5.6), math.radians(-61.59), math.radians(-46.41)),  # 36
    Part.ArcOfCircle(Part.Circle(App.Vector(5.7, -4.6, 0), App.Vector(0, 0, 1), 3), math.radians(-173), math.radians(-103)),  # 37
    Part.ArcOfCircle(Part.Circle(App.Vector(0, 0, 0), App.Vector(0, 0, 1), 9), math.radians(-56.3), math.radians(-51.7)),  # 38
    Part.ArcOfCircle(Part.Circle(App.Vector(2.6, -6.8, 0), App.Vector(0, 0, 1), 3), math.radians(-5), math.radians(65)),  # 39
], False)
sketch6.addConstraint([
    Sketcher.Constraint("Coincident", 0, 1, 1, 1),
    Sketcher.Constraint("Coincident", 1, 2, 2, 1),
    Sketcher.Constraint("Coincident", 2, 2, 3, 1),
    Sketcher.Constraint("Coincident", 3, 2, 0, 2),
    Sketcher.Constraint("Coincident", 4, 1, 5, 1),
    Sketcher.Constraint("Coincident", 5, 2, 6, 1),
    Sketcher.Constraint("Coincident", 6, 2, 7, 1),
    Sketcher.Constraint("Coincident", 7, 2, 4, 2),
    Sketcher.Constraint("Coincident", 8, 1, 9, 1),
    Sketcher.Constraint("Coincident", 9, 2, 10, 1),
    Sketcher.Constraint("Coincident", 10, 2, 11, 1),
    Sketcher.Constraint("Coincident", 11, 2, 8, 2),
    Sketcher.Constraint("Coincident", 12, 1, 13, 1),
    Sketcher.Constraint("Coincident", 13, 2, 14, 1),
    Sketcher.Constraint("Coincident", 14, 2, 15, 1),
    Sketcher.Constraint("Coincident", 15, 2, 12, 2),
    Sketcher.Constraint("Coincident", 16, 1, 17, 1),
    Sketcher.Constraint("Coincident", 17, 2, 18, 1),
    Sketcher.Constraint("Coincident", 18, 2, 19, 1),
    Sketcher.Constraint("Coincident", 19, 2, 16, 2),
    Sketcher.Constraint("Coincident", 20, 1, 21, 1),
    Sketcher.Constraint("Coincident", 21, 2, 22, 1),
    Sketcher.Constraint("Coincident", 22, 2, 23, 1),
    Sketcher.Constraint("Coincident", 23, 2, 20, 2),
    Sketcher.Constraint("Coincident", 24, 1, 25, 1),
    Sketcher.Constraint("Coincident", 25, 2, 26, 1),
    Sketcher.Constraint("Coincident", 26, 2, 27, 1),
    Sketcher.Constraint("Coincident", 27, 2, 24, 2),
    Sketcher.Constraint("Coincident", 28, 1, 29, 1),
    Sketcher.Constraint("Coincident", 29, 2, 30, 1),
    Sketcher.Constraint("Coincident", 30, 2, 31, 1),
    Sketcher.Constraint("Coincident", 31, 2, 28, 2),
    Sketcher.Constraint("Coincident", 32, 1, 33, 1),
    Sketcher.Constraint("Coincident", 33, 2, 34, 1),
    Sketcher.Constraint("Coincident", 34, 2, 35, 1),
    Sketcher.Constraint("Coincident", 35, 2, 32, 2),
    Sketcher.Constraint("Coincident", 36, 1, 37, 1),
    Sketcher.Constraint("Coincident", 37, 2, 38, 1),
    Sketcher.Constraint("Coincident", 38, 2, 39, 1),
    Sketcher.Constraint("Coincident", 39, 2, 36, 2),
    Sketcher.Constraint("Coincident", 0, 3, -1, 1),
    Sketcher.Constraint("Coincident", 2, 3, -1, 1),
    Sketcher.Constraint("Coincident", 4, 3, -1, 1),
    Sketcher.Constraint("Coincident", 6, 3, -1, 1),
    Sketcher.Constraint("Coincident", 8, 3, -1, 1),
    Sketcher.Constraint("Coincident", 10, 3, -1, 1),
    Sketcher.Constraint("Coincident", 12, 3, -1, 1),
    Sketcher.Constraint("Coincident", 14, 3, -1, 1),
    Sketcher.Constraint("Coincident", 16, 3, -1, 1),
    Sketcher.Constraint("Coincident", 18, 3, -1, 1),
    Sketcher.Constraint("Coincident", 20, 3, -1, 1),
    Sketcher.Constraint("Coincident", 22, 3, -1, 1),
    Sketcher.Constraint("Coincident", 24, 3, -1, 1),
    Sketcher.Constraint("Coincident", 26, 3, -1, 1),
    Sketcher.Constraint("Coincident", 28, 3, -1, 1),
    Sketcher.Constraint("Coincident", 30, 3, -1, 1),
    Sketcher.Constraint("Coincident", 32, 3, -1, 1),
    Sketcher.Constraint("Coincident", 34, 3, -1, 1),
    Sketcher.Constraint("Coincident", 36, 3, -1, 1),
    Sketcher.Constraint("Coincident", 38, 3, -1, 1),
    Sketcher.Constraint("Equal", 1, 3),
    Sketcher.Constraint("Equal", 0, 4),
    Sketcher.Constraint("Equal", 3, 5),
    Sketcher.Constraint("Equal", 2, 6),
    Sketcher.Constraint("Equal", 5, 7),
    Sketcher.Constraint("Equal", 4, 8),
    Sketcher.Constraint("Equal", 7, 9),
    Sketcher.Constraint("Equal", 6, 10),
    Sketcher.Constraint("Equal", 9, 11),
    Sketcher.Constraint("Equal", 8, 12),
    Sketcher.Constraint("Equal", 11, 13),
    Sketcher.Constraint("Equal", 10, 14),
    Sketcher.Constraint("Equal", 13, 15),
    Sketcher.Constraint("Equal", 12, 16),
    Sketcher.Constraint("Equal", 15, 17),
    Sketcher.Constraint("Equal", 14, 18),
    Sketcher.Constraint("Equal", 17, 19),
    Sketcher.Constraint("Equal", 16, 20),
    Sketcher.Constraint("Equal", 19, 21),
    Sketcher.Constraint("Equal", 18, 22),
    Sketcher.Constraint("Equal", 21, 23),
    Sketcher.Constraint("Equal", 20, 24),
    Sketcher.Constraint("Equal", 23, 25),
    Sketcher.Constraint("Equal", 22, 26),
    Sketcher.Constraint("Equal", 25, 27),
    Sketcher.Constraint("Equal", 24, 28),
    Sketcher.Constraint("Equal", 27, 29),
    Sketcher.Constraint("Equal", 26, 30),
    Sketcher.Constraint("Equal", 29, 31),
    Sketcher.Constraint("Equal", 28, 32),
    Sketcher.Constraint("Equal", 31, 33),
    Sketcher.Constraint("Equal", 30, 34),
    Sketcher.Constraint("Equal", 33, 35),
    Sketcher.Constraint("Equal", 32, 36),
    Sketcher.Constraint("Equal", 35, 37),
    Sketcher.Constraint("Equal", 34, 38),
    Sketcher.Constraint("Equal", 37, 39),
    Sketcher.Constraint("Symmetric", 1, 3, 21, 3, -1, 1),
    Sketcher.Constraint("Symmetric", 3, 3, 23, 3, -1, 1),
    Sketcher.Constraint("Symmetric", 5, 3, 25, 3, -1, 1),
    Sketcher.Constraint("Symmetric", 7, 3, 27, 3, -1, 1),
    Sketcher.Constraint("Symmetric", 9, 3, 29, 3, -1, 1),
    Sketcher.Constraint("Symmetric", 11, 3, 31, 3, -1, 1),
    Sketcher.Constraint("Symmetric", 13, 3, 33, 3, -1, 1),
    Sketcher.Constraint("Symmetric", 15, 3, 35, 3, -1, 1),
    Sketcher.Constraint("Symmetric", 17, 3, 37, 3, -1, 1),
    Sketcher.Constraint("Symmetric", 19, 3, 39, 3, -1, 1),
    Sketcher.Constraint("Symmetric", 13, 3, 15, 3, -2),
    Sketcher.Constraint("Symmetric", 11, 3, 17, 3, -2),
    Sketcher.Constraint("Symmetric", 9, 3, 19, 3, -2),
    Sketcher.Constraint("Symmetric", 7, 3, 21, 3, -2),
    Sketcher.Constraint("Symmetric", 5, 3, 23, 3, -2),
    Sketcher.Constraint("Radius", 1, Q("3 mm")),
    Sketcher.Constraint("Radius", 2, Q("9 mm")),
    Sketcher.Constraint("Radius", 0, Q("5.624 mm")),
    Sketcher.Constraint("DistanceY", 1, 2, -1, 1, Q("3.121901 mm")),
    Sketcher.Constraint("DistanceX", -1, 1, 1, 3, Q("7.251788 mm")),
    Sketcher.Constraint("DistanceX", -1, 1, 3, 3, Q("6.082981 mm")),
    Sketcher.Constraint("DistanceX", -1, 1, 11, 3, Q("5.650659 mm")),
    Sketcher.Constraint("DistanceX", 13, 3, -1, 1, Q("1.891169 mm")),
    Sketcher.Constraint("DistanceX", -1, 1, 8, 1, Q("3.877781 mm")),
    Sketcher.Constraint("DistanceY", -1, 1, 9, 2, Q("7.063331 mm")),
    Sketcher.Constraint("DistanceX", -1, 1, 10, 2, Q("4.994061 mm")),
    Sketcher.Constraint("DistanceY", -1, 1, 13, 2, Q("8.992772 mm")),
    Sketcher.Constraint("DistanceY", 3, 3, -1, 1, Q("3.964974 mm")),
])
sketch6.setExpression("Constraints[112]", "Params.sketch6_radius")
sketch6.setExpression("Constraints[113]", "Params.sketch6_radius2")
pad2 = body.newObject("PartDesign::Pad", "Pad001")
pad2.Profile = sketch6
pad2.setExpression("Length", "Params.pad2_length")

doc.recompute()
